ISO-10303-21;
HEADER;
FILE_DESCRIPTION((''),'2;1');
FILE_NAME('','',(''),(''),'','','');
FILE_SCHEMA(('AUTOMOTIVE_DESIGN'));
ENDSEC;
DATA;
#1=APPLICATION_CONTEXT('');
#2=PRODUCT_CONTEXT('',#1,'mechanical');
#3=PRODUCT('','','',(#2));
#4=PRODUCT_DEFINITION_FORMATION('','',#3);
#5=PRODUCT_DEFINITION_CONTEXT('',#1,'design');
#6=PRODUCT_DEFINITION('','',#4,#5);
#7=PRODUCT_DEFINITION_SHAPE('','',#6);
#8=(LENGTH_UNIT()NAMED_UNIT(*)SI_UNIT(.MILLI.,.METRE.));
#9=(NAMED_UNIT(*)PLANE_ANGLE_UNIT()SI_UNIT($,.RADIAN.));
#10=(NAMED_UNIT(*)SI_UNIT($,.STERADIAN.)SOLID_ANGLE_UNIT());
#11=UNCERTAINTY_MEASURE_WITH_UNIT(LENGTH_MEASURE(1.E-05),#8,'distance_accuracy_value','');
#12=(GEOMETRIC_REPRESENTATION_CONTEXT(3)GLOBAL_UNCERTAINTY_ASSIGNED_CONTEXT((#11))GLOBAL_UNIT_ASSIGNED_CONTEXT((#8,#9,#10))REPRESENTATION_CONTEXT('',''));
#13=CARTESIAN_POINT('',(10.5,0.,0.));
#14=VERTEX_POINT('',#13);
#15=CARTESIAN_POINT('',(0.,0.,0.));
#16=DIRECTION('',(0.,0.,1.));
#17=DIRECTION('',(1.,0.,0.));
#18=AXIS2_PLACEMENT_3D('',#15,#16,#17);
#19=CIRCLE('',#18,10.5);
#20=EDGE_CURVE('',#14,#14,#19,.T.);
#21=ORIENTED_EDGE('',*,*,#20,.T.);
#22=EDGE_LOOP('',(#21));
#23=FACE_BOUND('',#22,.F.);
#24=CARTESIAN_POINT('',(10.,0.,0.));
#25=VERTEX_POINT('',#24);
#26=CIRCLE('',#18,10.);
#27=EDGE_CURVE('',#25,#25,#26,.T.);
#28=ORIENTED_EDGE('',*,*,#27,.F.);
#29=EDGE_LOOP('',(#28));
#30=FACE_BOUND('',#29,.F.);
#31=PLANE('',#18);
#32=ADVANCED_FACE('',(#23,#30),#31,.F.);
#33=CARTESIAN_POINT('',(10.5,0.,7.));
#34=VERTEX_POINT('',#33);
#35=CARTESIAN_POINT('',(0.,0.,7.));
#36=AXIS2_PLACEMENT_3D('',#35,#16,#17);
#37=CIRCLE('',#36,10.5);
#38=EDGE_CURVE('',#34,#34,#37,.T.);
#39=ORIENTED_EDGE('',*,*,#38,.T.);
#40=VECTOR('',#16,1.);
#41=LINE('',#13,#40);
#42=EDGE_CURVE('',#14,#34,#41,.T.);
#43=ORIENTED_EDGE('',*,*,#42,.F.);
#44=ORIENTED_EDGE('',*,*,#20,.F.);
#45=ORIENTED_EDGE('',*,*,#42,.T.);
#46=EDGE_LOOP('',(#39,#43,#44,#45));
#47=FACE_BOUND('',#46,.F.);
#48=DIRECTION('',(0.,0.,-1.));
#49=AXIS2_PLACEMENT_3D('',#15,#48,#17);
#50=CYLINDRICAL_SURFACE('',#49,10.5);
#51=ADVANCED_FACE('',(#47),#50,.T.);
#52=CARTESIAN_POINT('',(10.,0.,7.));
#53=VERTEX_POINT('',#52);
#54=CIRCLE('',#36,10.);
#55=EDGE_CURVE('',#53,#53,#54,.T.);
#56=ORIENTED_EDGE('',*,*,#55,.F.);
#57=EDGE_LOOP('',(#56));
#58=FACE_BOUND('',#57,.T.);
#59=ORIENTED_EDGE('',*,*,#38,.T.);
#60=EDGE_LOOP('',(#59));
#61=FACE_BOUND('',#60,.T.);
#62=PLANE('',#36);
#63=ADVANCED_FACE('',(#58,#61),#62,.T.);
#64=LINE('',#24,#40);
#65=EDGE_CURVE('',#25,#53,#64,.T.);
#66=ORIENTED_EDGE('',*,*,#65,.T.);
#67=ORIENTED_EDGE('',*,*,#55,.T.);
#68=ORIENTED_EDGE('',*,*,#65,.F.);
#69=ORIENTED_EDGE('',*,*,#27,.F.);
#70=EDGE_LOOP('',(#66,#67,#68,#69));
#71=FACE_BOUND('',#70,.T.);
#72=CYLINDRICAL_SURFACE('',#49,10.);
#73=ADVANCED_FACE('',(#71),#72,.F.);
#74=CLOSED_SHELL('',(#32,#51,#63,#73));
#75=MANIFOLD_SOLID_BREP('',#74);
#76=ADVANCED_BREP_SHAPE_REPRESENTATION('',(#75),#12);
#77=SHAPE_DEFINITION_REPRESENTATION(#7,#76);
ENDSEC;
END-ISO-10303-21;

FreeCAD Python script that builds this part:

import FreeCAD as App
import Part
import Sketcher
from FreeCAD import Vector

doc = App.newDocument("Part")
params = doc.addObject("Spreadsheet::Sheet", "Params")
for row, (alias, value) in enumerate([
    ("sketch1_diameter", "21 mm"),
    ("sketch1_diameter2", "20 mm"),
    ("pad1_length", "7 mm"),
], start=1):
    params.set(f"A{row}", alias)
    params.set(f"B{row}", "=" + value)
    params.setAlias(f"B{row}", alias)

body = doc.addObject("PartDesign::Body", "Body")

# Sketch on XY plane
sketch1 = doc.addObject("Sketcher::SketchObject", "Sketch")
body.addObject(sketch1)
sketch1.AttachmentSupport = (doc.XY_Plane, [""])
sketch1.MapMode = "FlatFace"
sketch1.addGeometry([
    Part.Circle(Vector(0, 0, 0), Vector(0, 0, 1), 10),
    Part.Circle(Vector(0, 0, 0), Vector(0, 0, 1), 10),
], False)
sketch1.addConstraint([
    Sketcher.Constraint("Coincident", 0, 3, -1, 1),
    Sketcher.Constraint("Coincident", 1, 3, -1, 1),
    Sketcher.Constraint("Diameter", 0, 21.0),
    Sketcher.Constraint("Diameter", 1, 20.0),
])
sketch1.setExpression("Constraints[2]", "Params.sketch1_diameter")
sketch1.setExpression("Constraints[3]", "Params.sketch1_diameter2")
pad1 = doc.addObject("PartDesign::Pad", "Pad")
body.addObject(pad1)
pad1.Profile = sketch1
pad1.setExpression("Length", "Params.pad1_length")

doc.recompute()
